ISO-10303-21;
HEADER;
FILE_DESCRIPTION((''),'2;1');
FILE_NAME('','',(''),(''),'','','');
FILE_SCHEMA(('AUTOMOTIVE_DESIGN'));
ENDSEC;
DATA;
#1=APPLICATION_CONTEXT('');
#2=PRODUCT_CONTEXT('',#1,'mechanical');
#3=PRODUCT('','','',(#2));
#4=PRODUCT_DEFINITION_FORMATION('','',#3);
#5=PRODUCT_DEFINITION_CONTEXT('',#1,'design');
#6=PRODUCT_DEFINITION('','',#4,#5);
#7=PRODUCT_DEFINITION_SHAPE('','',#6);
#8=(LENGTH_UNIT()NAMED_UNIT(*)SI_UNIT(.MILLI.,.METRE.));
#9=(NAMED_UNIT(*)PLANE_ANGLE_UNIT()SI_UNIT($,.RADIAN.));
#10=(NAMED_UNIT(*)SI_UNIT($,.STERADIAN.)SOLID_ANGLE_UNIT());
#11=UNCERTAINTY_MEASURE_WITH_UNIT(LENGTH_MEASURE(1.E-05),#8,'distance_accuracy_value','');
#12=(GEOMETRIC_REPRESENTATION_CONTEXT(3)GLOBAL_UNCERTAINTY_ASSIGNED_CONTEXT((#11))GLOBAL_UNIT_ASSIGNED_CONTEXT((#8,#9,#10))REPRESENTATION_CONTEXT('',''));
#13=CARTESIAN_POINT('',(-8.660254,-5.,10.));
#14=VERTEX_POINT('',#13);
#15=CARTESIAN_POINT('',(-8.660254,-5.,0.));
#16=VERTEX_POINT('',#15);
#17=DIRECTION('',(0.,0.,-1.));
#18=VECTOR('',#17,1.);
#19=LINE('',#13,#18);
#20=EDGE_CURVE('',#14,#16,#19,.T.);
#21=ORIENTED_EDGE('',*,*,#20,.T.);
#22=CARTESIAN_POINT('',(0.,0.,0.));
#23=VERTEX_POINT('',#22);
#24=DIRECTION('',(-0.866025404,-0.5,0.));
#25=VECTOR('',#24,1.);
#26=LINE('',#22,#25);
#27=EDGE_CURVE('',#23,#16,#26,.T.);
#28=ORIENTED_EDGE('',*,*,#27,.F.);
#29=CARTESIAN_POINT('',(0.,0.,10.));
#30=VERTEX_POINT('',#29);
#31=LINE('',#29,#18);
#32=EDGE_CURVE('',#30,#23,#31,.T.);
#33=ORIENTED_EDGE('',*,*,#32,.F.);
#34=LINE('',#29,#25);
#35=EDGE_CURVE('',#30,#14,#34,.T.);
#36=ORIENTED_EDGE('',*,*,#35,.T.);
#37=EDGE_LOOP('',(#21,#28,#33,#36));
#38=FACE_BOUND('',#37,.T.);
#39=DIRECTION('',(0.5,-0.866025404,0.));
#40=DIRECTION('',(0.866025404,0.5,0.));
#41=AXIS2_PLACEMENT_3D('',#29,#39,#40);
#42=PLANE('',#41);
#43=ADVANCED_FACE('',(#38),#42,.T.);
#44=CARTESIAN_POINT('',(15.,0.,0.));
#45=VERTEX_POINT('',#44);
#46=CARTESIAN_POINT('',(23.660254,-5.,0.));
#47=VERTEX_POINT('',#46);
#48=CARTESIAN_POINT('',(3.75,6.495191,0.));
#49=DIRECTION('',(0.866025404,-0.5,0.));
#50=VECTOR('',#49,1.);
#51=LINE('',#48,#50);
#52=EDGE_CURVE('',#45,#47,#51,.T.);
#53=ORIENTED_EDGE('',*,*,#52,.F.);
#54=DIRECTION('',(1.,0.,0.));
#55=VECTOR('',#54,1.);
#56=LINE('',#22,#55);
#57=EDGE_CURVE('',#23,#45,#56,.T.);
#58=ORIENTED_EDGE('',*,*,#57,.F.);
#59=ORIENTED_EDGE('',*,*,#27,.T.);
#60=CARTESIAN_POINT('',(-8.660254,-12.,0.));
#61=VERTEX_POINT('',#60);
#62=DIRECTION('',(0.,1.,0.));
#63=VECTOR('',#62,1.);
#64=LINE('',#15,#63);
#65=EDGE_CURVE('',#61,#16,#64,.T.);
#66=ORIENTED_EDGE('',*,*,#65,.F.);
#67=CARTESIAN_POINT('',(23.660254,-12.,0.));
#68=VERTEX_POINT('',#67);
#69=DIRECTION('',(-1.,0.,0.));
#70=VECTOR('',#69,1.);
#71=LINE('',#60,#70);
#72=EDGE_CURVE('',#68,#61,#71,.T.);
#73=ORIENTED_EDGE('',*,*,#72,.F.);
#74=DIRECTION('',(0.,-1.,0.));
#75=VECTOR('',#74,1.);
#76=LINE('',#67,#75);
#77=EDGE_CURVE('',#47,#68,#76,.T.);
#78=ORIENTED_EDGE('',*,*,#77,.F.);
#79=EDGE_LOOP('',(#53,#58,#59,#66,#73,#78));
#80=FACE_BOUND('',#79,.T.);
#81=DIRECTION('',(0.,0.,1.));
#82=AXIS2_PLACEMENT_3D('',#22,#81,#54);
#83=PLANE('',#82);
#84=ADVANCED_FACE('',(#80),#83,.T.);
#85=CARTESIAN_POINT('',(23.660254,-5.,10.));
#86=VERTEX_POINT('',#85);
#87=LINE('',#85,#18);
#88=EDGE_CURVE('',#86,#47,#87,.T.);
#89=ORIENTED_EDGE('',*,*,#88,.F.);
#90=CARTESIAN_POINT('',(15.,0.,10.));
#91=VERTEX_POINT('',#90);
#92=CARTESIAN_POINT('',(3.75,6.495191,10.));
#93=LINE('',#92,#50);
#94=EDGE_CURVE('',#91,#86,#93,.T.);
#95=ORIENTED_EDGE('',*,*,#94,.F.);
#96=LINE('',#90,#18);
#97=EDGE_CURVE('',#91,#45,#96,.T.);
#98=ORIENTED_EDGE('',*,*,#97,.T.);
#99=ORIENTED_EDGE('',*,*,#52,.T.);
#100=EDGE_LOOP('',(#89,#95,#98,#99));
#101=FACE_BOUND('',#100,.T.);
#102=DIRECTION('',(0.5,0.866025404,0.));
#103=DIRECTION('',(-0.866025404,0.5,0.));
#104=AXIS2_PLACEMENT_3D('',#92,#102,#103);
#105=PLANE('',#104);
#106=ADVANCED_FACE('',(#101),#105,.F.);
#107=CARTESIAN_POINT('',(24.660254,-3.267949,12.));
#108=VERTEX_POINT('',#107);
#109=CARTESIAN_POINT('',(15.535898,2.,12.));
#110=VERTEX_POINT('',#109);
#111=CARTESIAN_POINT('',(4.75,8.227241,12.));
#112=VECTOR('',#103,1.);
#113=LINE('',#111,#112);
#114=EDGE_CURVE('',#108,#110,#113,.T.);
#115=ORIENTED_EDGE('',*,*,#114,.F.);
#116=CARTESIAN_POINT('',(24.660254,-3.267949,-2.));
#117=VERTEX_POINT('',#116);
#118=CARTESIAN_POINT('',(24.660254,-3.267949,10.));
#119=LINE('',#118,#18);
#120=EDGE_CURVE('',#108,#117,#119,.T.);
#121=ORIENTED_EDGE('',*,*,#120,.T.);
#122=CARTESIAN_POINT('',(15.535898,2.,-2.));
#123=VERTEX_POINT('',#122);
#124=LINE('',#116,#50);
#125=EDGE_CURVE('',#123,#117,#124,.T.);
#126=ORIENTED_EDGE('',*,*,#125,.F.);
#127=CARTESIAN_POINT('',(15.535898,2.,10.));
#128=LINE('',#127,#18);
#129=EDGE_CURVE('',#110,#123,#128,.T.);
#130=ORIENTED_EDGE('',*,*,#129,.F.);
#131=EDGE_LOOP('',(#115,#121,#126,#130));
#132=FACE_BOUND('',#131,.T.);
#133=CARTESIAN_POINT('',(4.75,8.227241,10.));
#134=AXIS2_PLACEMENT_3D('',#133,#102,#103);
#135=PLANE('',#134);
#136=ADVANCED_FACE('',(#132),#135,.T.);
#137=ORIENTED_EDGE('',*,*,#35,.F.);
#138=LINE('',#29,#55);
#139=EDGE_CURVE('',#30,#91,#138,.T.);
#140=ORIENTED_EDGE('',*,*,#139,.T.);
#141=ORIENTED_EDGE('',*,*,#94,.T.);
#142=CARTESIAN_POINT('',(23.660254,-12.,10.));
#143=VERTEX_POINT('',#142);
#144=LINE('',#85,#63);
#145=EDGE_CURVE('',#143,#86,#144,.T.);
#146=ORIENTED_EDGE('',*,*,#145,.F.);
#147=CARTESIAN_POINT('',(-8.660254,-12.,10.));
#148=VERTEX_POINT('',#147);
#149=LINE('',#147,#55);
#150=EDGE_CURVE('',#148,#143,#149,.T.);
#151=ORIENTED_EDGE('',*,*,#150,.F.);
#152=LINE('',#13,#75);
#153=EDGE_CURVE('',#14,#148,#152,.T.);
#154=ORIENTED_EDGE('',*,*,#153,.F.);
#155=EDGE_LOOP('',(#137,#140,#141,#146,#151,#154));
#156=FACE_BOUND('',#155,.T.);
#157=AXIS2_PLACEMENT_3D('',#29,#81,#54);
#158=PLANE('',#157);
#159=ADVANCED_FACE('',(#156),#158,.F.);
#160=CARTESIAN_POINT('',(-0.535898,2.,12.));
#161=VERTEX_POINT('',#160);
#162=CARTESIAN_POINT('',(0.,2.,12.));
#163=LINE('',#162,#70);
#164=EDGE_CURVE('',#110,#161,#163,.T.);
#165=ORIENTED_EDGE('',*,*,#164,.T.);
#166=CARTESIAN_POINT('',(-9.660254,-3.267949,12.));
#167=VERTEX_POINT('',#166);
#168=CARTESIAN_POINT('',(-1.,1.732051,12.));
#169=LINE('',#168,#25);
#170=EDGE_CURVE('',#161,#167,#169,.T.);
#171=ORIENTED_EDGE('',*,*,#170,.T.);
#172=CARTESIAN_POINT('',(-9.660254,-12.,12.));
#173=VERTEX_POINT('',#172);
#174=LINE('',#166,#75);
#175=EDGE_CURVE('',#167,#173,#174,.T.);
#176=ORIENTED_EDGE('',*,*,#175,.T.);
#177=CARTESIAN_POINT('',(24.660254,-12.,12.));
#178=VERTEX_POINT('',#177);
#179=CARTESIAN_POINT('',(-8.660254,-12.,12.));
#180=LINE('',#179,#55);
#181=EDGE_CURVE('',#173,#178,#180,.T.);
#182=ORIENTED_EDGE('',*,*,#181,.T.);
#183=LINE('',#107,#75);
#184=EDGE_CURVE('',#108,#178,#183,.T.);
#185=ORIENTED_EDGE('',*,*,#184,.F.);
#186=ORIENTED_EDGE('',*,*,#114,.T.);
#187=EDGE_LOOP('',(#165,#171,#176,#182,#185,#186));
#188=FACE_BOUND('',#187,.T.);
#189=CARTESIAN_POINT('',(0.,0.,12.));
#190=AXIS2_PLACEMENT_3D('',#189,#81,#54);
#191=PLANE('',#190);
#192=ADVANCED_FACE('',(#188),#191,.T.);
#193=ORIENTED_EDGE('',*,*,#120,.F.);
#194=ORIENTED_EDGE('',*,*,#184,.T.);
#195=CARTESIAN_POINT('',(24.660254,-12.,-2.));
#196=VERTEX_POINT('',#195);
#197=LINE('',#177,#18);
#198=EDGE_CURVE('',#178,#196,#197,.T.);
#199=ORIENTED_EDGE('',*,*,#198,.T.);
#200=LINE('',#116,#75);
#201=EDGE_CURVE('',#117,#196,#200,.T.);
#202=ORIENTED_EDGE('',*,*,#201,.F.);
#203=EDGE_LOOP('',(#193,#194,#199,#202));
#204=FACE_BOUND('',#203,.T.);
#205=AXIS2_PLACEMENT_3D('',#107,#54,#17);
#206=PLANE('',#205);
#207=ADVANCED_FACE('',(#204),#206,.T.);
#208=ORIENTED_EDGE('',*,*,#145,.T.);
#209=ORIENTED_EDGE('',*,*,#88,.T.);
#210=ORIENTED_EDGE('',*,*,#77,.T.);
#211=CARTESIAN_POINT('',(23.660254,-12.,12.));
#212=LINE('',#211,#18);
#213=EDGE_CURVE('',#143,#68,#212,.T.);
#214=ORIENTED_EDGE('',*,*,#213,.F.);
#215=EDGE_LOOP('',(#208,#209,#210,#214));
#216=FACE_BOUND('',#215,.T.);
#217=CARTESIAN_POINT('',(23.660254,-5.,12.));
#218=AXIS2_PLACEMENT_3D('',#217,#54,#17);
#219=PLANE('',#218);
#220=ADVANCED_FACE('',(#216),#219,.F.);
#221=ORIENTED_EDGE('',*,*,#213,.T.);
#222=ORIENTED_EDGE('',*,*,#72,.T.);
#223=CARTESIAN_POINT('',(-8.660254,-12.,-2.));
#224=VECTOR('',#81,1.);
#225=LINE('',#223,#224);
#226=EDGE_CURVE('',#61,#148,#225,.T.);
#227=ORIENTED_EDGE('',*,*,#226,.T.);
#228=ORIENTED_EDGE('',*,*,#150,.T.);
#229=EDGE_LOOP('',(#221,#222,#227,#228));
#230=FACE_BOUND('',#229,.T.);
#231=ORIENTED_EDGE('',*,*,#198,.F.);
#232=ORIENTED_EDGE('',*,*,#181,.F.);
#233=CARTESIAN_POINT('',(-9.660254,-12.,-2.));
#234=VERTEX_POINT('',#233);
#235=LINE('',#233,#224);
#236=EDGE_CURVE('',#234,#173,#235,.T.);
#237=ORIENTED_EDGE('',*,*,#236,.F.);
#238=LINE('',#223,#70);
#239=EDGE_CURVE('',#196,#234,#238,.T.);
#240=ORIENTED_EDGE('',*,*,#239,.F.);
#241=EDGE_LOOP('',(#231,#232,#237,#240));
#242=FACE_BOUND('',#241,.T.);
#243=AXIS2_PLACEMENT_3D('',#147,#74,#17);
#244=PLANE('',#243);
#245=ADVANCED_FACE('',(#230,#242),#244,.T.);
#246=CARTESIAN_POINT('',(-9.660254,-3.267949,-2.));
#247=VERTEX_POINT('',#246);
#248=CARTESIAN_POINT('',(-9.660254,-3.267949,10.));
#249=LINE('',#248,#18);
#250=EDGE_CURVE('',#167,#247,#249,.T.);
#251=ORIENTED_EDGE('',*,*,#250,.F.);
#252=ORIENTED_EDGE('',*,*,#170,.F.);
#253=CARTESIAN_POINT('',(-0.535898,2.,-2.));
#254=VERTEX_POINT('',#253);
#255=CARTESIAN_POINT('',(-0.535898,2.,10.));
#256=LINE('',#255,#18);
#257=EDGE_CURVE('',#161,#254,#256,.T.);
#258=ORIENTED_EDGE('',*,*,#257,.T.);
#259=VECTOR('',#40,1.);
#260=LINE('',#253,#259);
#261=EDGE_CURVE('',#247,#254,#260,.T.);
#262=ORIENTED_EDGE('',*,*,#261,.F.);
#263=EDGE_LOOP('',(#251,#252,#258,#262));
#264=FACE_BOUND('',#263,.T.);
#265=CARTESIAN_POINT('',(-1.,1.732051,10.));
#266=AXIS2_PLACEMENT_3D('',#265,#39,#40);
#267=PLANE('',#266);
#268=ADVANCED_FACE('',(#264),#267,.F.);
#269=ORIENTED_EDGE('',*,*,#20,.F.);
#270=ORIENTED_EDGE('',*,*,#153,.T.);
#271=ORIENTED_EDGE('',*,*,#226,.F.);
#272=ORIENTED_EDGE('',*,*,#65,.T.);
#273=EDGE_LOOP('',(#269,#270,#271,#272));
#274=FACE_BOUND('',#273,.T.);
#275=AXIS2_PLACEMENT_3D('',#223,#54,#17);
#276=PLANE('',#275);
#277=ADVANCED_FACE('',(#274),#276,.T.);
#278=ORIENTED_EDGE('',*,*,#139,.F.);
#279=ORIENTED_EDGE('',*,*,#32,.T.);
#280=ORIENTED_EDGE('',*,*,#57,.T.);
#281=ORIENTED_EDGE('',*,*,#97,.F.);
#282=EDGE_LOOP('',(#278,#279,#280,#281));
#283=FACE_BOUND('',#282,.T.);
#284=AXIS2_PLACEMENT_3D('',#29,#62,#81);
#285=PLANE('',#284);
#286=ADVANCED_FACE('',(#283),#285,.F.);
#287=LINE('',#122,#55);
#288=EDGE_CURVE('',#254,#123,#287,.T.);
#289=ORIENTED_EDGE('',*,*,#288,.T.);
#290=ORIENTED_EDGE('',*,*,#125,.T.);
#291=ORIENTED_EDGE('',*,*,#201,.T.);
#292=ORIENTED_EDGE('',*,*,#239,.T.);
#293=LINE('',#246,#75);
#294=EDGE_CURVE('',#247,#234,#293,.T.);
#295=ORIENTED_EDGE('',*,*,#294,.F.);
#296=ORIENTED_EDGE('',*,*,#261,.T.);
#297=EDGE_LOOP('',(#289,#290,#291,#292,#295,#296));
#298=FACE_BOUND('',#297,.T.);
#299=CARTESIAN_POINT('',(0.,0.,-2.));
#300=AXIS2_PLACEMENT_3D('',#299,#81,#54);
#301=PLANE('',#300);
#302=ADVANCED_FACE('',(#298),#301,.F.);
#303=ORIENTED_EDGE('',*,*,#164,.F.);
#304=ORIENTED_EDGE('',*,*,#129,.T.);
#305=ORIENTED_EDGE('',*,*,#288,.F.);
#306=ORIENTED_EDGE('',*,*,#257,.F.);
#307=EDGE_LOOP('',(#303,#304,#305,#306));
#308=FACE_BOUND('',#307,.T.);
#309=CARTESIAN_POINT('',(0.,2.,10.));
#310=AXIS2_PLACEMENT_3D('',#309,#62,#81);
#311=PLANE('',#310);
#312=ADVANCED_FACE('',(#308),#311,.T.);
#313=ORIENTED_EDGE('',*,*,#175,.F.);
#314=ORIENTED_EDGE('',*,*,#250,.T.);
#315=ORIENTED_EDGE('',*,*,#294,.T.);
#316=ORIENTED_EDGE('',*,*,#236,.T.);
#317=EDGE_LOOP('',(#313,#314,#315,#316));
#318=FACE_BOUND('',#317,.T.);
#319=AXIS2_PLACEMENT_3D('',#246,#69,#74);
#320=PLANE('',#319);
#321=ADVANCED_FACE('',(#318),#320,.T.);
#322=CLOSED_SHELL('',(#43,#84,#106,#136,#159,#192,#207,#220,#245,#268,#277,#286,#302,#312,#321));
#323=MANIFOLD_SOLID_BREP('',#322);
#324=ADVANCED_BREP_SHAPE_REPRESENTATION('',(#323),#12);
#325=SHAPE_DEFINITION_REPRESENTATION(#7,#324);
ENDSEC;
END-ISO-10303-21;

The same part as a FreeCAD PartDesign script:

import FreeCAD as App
import Part
import Sketcher

V = App.Vector
Q = App.Units.Quantity


def add_polygon(sketch, points):
    """Adds a closed chain of lines whose ends are joined by coincident constraints."""
    first, n = sketch.GeometryCount, len(points)
    for a, b in zip(points, points[1:] + points[:1]):
        sketch.addGeometry(Part.LineSegment(App.Vector(*a, 0), App.Vector(*b, 0)), False)
    for i in range(n):
        sketch.addConstraint(Sketcher.Constraint("Coincident", first + i, 2, first + (i + 1) % n, 1))

doc = App.newDocument("Part")
body = doc.addObject("PartDesign::Body", "Body")

sketch1 = body.newObject("Sketcher::SketchObject", "Sketch")
sketch1.AttachmentSupport = (doc.getObject("XY_Plane"), [""])
sketch1.MapMode = "FlatFace"
add_polygon(sketch1, [(15, 0), (23.7, -5), (24.7, -3.3), (15.5, 2), (-0.5, 2), (-9.7, -3.3), (-8.7, -5), (0, 0)])
sketch1.addConstraint([
    Sketcher.Constraint("Horizontal", 3),
    Sketcher.Constraint("Horizontal", 7),
    Sketcher.Constraint("Coincident", 6, 2, -1, 1),
    Sketcher.Constraint("Perpendicular", 0, 1),
    Sketcher.Constraint("Perpendicular", 1, 2),
    Sketcher.Constraint("Perpendicular", 4, 5),
    Sketcher.Constraint("Perpendicular", 5, 6),
    Sketcher.Constraint("Horizontal", 1, 2, 4, 2),
    Sketcher.Constraint("Horizontal", 0, 2, 5, 2),
    Sketcher.Constraint("Equal", 2, 4),
    Sketcher.Constraint("DistanceX", 7, 1, 7, 2, Q("15 mm")),
    Sketcher.Constraint("Angle", 0, Q("-30 deg")),
    Sketcher.Constraint("Distance", 0, Q("10 mm")),
    Sketcher.Constraint("Distance", 1, Q("2 mm")),
    Sketcher.Constraint("DistanceY", -1, 1, 2, 2, Q("2 mm")),
])
pad1 = body.newObject("PartDesign::Pad", "Pad")
pad1.Profile = sketch1
pad1.Length = 10

sketch2 = body.newObject("Sketcher::SketchObject", "Sketch001")
sketch2.AttachmentSupport = (doc.getObject("XY_Plane"), [""])
sketch2.MapMode = "FlatFace"
sketch2.AttachmentOffset = App.Placement(V(0, 0, 10), App.Rotation())
add_polygon(sketch2, [(-8.7, -5), (23.7, -5), (24.7, -3.3), (15.5, 2), (-0.5, 2), (-9.7, -3.3)])
sketch2.addConstraint([
    Sketcher.Constraint("Horizontal", 0),
    Sketcher.Constraint("Horizontal", 3),
    Sketcher.Constraint("Perpendicular", 1, 2),
    Sketcher.Constraint("Perpendicular", 4, 5),
    Sketcher.Constraint("Horizontal", 1, 2, 4, 2),
    Sketcher.Constraint("Equal", 2, 4),
    Sketcher.Constraint("Angle", 1, Q("60 deg")),
    Sketcher.Constraint("Distance", 1, Q("2 mm")),
    Sketcher.Constraint("DistanceY", 0, 2, -1, 1, Q("5 mm")),
    Sketcher.Constraint("DistanceY", -1, 1, 2, 2, Q("2 mm")),
    Sketcher.Constraint("DistanceX", 0, 1, 0, 2, Q("32.320508 mm")),
    Sketcher.Constraint("DistanceX", -1, 1, 2, 2, Q("15.535898 mm")),
])
pad2 = body.newObject("PartDesign::Pad", "Pad001")
pad2.Profile = sketch2
pad2.Length = 2

sketch3 = body.newObject("Sketcher::SketchObject", "Sketch002")
sketch3.AttachmentSupport = (doc.getObject("XY_Plane"), [""])
sketch3.MapMode = "FlatFace"
add_polygon(sketch3, [(15.5, 2), (24.7, -3.3), (23.7, -5), (-8.7, -5), (-9.7, -3.3), (-0.5, 2)])
sketch3.addConstraint([
    Sketcher.Constraint("Horizontal", 2),
    Sketcher.Constraint("Horizontal", 5),
    Sketcher.Constraint("Perpendicular", 0, 1),
    Sketcher.Constraint("Perpendicular", 3, 4),
    Sketcher.Constraint("Horizontal", 0, 2, 3, 2),
    Sketcher.Constraint("Equal", 1, 3),
    Sketcher.Constraint("Angle", 0, Q("-30 deg")),
    Sketcher.Constraint("Distance", 1, Q("2 mm")),
    Sketcher.Constraint("DistanceY", 1, 2, -1, 1, Q("5 mm")),
    Sketcher.Constraint("DistanceY", -1, 1, 4, 2, Q("2 mm")),
    Sketcher.Constraint("DistanceX", 2, 2, 2, 1, Q("32.320508 mm")),
    Sketcher.Constraint("DistanceX", 4, 2, -1, 1, Q("0.535898 mm")),
])
pad3 = body.newObject("PartDesign::Pad", "Pad002")
pad3.Profile = sketch3
pad3.Length = 2
pad3.Reversed = True

sketch4 = body.newObject("Sketcher::SketchObject", "Sketch003")
sketch4.AttachmentSupport = (doc.getObject("XY_Plane"), [""])
sketch4.MapMode = "FlatFace"
sketch4.AttachmentOffset = App.Placement(V(0, 0, 12), App.Rotation())
add_polygon(sketch4, [(-9, -5), (-9, -12), (24, -12), (24, -5)])
sketch4.addConstraint([
    Sketcher.Constraint("Vertical", 0),
    Sketcher.Constraint("Horizontal", 1),
    Sketcher.Constraint("Vertical", 2),
    Sketcher.Constraint("Horizontal", 3),
    Sketcher.Constraint("DistanceY", 0, 2, 0, 1, Q("7 mm")),
    Sketcher.Constraint("DistanceY", 0, 2, -1, 1, Q("12 mm")),
    Sketcher.Constraint("DistanceX", 1, 1, 1, 2, Q("32.320508 mm")),
    Sketcher.Constraint("DistanceX", 0, 2, -1, 1, Q("8.660254 mm")),
])
pad4 = body.newObject("PartDesign::Pad", "Pad003")
pad4.Profile = sketch4
pad4.Length = 2
pad4.Reversed = True

sketch5 = body.newObject("Sketcher::SketchObject", "Sketch004")
sketch5.AttachmentSupport = (doc.getObject("XY_Plane"), [""])
sketch5.MapMode = "FlatFace"
sketch5.AttachmentOffset = App.Placement(V(0, 0, -2), App.Rotation())
add_polygon(sketch5, [(24, -5), (24, -12), (-9, -12), (-9, -5)])
sketch5.addConstraint([
    Sketcher.Constraint("Vertical", 0),
    Sketcher.Constraint("Horizontal", 1),
    Sketcher.Constraint("Vertical", 2),
    Sketcher.Constraint("Horizontal", 3),
    Sketcher.Constraint("DistanceY", 0, 2, 0, 1, Q("7 mm")),
    Sketcher.Constraint("DistanceY", 0, 2, -1, 1, Q("12 mm")),
    Sketcher.Constraint("DistanceX", 1, 2, 1, 1, Q("32.320508 mm")),
    Sketcher.Constraint("DistanceX", -1, 1, 0, 2, Q("23.660254 mm")),
])
pad5 = body.newObject("PartDesign::Pad", "Pad004")
pad5.Profile = sketch5
pad5.Length = 2

sketch6 = body.newObject("Sketcher::SketchObject", "Sketch005")
sketch6.AttachmentSupport = (doc.getObject("XY_Plane"), [""])
sketch6.MapMode = "FlatFace"
sketch6.AttachmentOffset = App.Placement(V(0, 0, 12), App.Rotation())
add_polygon(sketch6, [(-9.7, -3.3), (-9.7, -12), (-8.7, -12), (-8.7, -5)])
sketch6.addConstraint([
    Sketcher.Constraint("Vertical", 0),
    Sketcher.Constraint("Horizontal", 1),
    Sketcher.Constraint("Vertical", 2),
    Sketcher.Constraint("DistanceX", 1, 1, 1, 2, Q("1 mm")),
    Sketcher.Constraint("DistanceY", 2, 1, 2, 2, Q("7 mm")),
    Sketcher.Constraint("Angle", 3, Q("120 deg")),
    Sketcher.Constraint("DistanceY", 0, 2, -1, 1, Q("12 mm")),
    Sketcher.Constraint("DistanceX", 0, 2, -1, 1, Q("9.660254 mm")),
])
pad6 = body.newObject("PartDesign::Pad", "Pad005")
pad6.Profile = sketch6
pad6.Length = 14
pad6.Reversed = True

sketch7 = body.newObject("Sketcher::SketchObject", "Sketch006")
sketch7.AttachmentSupport = (doc.getObject("XY_Plane"), [""])
sketch7.MapMode = "FlatFace"
sketch7.AttachmentOffset = App.Placement(V(0, 0, -2), App.Rotation())
add_polygon(sketch7, [(23.7, -5), (24.7, -3.3), (24.7, -12), (23.7, -12)])
sketch7.addConstraint([
    Sketcher.Constraint("Vertical", 1),
    Sketcher.Constraint("Horizontal", 2),
    Sketcher.Constraint("Vertical", 3),
    Sketcher.Constraint("DistanceX", 2, 2, 2, 1, Q("1 mm")),
    Sketcher.Constraint("DistanceY", 3, 1, 3, 2, Q("7 mm")),
    Sketcher.Constraint("Angle", 0, Q("60 deg")),
    Sketcher.Constraint("DistanceY", 1, 2, -1, 1, Q("12 mm")),
    Sketcher.Constraint("DistanceX", -1, 1, 0, 2, Q("24.660254 mm")),
])
pad7 = body.newObject("PartDesign::Pad", "Pad006")
pad7.Profile = sketch7
pad7.Length = 14

doc.recompute()
